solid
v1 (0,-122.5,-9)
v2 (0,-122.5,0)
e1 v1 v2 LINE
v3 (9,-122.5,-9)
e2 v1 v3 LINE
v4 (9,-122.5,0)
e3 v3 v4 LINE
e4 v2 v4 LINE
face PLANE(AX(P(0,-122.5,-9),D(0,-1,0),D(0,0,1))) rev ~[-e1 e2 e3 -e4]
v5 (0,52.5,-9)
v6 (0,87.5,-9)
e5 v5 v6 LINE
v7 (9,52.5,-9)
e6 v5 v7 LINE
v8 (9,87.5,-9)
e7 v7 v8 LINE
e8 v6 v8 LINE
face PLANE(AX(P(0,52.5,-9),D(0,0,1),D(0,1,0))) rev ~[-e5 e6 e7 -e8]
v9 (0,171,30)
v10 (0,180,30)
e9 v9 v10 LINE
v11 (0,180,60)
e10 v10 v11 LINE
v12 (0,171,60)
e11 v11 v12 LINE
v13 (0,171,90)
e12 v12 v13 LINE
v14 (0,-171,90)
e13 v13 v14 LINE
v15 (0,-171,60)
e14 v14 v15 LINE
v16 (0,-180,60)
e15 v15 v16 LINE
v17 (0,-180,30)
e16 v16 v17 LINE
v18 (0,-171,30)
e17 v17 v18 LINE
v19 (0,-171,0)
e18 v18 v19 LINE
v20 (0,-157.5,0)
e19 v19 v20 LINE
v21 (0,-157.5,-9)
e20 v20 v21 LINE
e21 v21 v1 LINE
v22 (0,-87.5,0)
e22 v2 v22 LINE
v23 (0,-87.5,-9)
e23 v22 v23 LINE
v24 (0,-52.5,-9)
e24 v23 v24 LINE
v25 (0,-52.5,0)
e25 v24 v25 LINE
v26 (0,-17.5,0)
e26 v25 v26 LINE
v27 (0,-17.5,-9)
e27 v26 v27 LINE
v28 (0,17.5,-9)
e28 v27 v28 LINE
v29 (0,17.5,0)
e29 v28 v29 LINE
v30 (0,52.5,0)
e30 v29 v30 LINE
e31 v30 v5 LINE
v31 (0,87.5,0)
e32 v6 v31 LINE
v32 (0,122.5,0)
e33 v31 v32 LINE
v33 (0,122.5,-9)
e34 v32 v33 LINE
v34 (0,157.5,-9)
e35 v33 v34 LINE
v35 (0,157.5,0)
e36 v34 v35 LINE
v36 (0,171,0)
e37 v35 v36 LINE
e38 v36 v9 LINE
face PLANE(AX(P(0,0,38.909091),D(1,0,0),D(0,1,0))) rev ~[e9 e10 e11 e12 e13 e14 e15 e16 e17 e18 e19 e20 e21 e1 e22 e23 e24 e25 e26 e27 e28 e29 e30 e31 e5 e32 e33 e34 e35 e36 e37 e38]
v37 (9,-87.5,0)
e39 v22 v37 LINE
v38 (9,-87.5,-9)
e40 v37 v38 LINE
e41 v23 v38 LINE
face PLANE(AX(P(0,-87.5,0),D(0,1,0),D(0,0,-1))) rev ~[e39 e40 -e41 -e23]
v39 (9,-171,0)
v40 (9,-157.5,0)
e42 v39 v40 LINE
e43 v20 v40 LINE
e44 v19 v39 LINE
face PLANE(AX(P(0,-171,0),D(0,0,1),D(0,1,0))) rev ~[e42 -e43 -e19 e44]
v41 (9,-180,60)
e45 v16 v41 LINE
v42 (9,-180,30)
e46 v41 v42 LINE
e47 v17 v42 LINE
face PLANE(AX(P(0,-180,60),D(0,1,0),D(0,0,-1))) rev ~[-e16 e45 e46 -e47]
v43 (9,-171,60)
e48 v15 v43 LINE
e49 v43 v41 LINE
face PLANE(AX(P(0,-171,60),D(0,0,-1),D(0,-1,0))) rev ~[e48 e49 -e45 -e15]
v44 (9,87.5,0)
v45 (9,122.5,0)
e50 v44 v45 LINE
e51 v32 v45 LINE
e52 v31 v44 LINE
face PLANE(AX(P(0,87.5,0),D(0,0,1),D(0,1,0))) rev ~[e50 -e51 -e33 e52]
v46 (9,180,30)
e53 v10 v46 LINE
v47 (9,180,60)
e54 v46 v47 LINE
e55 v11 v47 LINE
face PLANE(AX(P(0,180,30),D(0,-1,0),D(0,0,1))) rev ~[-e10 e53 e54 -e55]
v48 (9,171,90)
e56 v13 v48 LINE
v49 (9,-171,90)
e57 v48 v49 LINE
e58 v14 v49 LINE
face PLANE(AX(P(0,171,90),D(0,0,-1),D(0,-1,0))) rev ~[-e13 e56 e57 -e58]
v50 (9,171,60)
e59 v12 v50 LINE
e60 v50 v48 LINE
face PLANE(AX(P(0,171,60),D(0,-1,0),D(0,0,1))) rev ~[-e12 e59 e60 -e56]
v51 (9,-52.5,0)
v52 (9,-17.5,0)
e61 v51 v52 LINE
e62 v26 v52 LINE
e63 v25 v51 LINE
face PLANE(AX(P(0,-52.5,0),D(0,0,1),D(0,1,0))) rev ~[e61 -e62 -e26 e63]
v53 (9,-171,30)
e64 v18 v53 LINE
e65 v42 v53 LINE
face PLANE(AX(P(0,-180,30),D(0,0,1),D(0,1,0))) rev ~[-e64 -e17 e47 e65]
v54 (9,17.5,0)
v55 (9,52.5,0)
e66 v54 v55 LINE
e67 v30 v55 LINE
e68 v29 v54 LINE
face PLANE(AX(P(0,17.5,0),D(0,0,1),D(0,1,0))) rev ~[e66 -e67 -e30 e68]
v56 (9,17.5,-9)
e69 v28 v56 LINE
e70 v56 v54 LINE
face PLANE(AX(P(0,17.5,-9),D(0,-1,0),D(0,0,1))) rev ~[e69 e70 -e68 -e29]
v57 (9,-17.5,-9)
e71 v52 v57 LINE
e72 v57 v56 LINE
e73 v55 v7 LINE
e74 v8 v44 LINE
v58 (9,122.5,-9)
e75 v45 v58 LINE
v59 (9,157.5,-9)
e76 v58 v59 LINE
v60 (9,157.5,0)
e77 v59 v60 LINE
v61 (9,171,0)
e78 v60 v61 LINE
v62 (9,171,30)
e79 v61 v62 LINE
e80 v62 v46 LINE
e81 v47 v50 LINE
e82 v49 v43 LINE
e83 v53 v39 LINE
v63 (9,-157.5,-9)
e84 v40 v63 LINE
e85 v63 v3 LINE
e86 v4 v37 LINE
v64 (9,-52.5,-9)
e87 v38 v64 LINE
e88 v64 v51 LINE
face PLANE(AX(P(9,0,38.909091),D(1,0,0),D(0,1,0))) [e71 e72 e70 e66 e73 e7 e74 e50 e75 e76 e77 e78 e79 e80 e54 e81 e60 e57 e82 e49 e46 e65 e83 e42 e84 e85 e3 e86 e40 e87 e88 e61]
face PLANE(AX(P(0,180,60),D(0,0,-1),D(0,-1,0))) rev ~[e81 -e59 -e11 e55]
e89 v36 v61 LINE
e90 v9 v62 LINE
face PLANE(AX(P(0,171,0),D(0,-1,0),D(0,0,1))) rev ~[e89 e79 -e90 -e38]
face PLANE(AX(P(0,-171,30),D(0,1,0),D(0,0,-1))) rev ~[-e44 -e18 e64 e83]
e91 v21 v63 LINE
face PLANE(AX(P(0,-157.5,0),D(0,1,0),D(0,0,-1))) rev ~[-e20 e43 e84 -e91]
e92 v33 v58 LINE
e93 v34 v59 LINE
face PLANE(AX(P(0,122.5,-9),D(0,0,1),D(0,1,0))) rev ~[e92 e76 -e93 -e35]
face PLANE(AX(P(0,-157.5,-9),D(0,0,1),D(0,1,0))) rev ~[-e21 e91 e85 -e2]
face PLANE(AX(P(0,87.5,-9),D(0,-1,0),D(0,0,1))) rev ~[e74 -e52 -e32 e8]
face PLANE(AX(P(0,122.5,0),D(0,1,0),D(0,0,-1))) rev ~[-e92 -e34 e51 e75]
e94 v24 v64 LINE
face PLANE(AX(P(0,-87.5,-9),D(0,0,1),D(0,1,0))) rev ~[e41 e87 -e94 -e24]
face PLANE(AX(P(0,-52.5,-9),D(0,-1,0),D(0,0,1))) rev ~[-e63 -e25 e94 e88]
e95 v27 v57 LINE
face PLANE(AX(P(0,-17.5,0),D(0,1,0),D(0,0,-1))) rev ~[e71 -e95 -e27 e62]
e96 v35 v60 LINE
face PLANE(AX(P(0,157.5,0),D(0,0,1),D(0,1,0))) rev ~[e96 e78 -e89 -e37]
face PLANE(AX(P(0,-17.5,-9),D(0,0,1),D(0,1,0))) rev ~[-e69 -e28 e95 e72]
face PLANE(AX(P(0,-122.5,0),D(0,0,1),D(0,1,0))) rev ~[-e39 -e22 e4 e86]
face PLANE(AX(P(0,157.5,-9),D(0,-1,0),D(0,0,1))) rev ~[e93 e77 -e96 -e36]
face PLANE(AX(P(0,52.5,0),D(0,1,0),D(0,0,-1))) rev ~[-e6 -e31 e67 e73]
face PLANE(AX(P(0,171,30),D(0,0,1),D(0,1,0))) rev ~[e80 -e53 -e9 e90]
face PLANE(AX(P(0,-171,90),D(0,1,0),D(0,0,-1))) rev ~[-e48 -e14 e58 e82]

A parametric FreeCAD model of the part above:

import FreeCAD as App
import Part
import Sketcher


def add_polygon(sketch, points):
    """Adds a closed chain of lines whose ends are joined by coincident constraints."""
    first, n = sketch.GeometryCount, len(points)
    for a, b in zip(points, points[1:] + points[:1]):
        sketch.addGeometry(Part.LineSegment(App.Vector(*a, 0), App.Vector(*b, 0)), False)
    for i in range(n):
        sketch.addConstraint(Sketcher.Constraint("Coincident", first + i, 2, first + (i + 1) % n, 1))

doc = App.newDocument("Part")
params = doc.addObject("Spreadsheet::Sheet", "Params")
for row, (alias, value) in enumerate([
    ("sketch1_width", "9 mm"),
    ("sketch1_width2", "35 mm"),
    ("sketch1_width3", "342 mm"),
    ("sketch1_height", "30 mm"),
    ("pad1_length", "9 mm"),
], start=1):
    params.set(f"A{row}", alias)
    params.set(f"B{row}", "=" + value)
    params.setAlias(f"B{row}", alias)

body = doc.addObject("PartDesign::Body", "Body")

# Sketch on YZ plane
sketch1 = body.newObject("Sketcher::SketchObject", "Sketch")
sketch1.AttachmentSupport = (doc.getObject("YZ_Plane"), [""])
sketch1.MapMode = "FlatFace"
add_polygon(sketch1, [(-171, 60), (-180, 60), (-180, 30), (-171, 30), (-171, 0), (-158, 0), (-158, -9), (-122, -9), (-122, 0), (-88, 0), (-88, -9), (-52, -9), (-52, 0), (-18, 0), (-18, -9), (18, -9), (18, 0), (52, 0), (52, -9), (88, -9), (88, 0), (122, 0), (122, -9), (158, -9), (158, 0), (171, 0), (171, 30), (180, 30), (180, 60), (171, 60), (171, 90), (-171, 90)])  # lines 0-31
sketch1.addConstraint(Sketcher.Constraint("Horizontal", 0))
sketch1.addConstraint(Sketcher.Constraint("Vertical", 1))
sketch1.addConstraint(Sketcher.Constraint("Horizontal", 2))
sketch1.addConstraint(Sketcher.Constraint("Vertical", 3))
sketch1.addConstraint(Sketcher.Constraint("Horizontal", 4))
sketch1.addConstraint(Sketcher.Constraint("Vertical", 5))
sketch1.addConstraint(Sketcher.Constraint("Horizontal", 6))
sketch1.addConstraint(Sketcher.Constraint("Vertical", 7))
sketch1.addConstraint(Sketcher.Constraint("Horizontal", 8))
sketch1.addConstraint(Sketcher.Constraint("Vertical", 9))
sketch1.addConstraint(Sketcher.Constraint("Horizontal", 10))
sketch1.addConstraint(Sketcher.Constraint("Vertical", 11))
sketch1.addConstraint(Sketcher.Constraint("Horizontal", 12))
sketch1.addConstraint(Sketcher.Constraint("Vertical", 13))
sketch1.addConstraint(Sketcher.Constraint("Horizontal", 14))
sketch1.addConstraint(Sketcher.Constraint("Vertical", 15))
sketch1.addConstraint(Sketcher.Constraint("Horizontal", 16))
sketch1.addConstraint(Sketcher.Constraint("Vertical", 17))
sketch1.addConstraint(Sketcher.Constraint("Horizontal", 18))
sketch1.addConstraint(Sketcher.Constraint("Vertical", 19))
sketch1.addConstraint(Sketcher.Constraint("Horizontal", 20))
sketch1.addConstraint(Sketcher.Constraint("Vertical", 21))
sketch1.addConstraint(Sketcher.Constraint("Horizontal", 22))
sketch1.addConstraint(Sketcher.Constraint("Vertical", 23))
sketch1.addConstraint(Sketcher.Constraint("Horizontal", 24))
sketch1.addConstraint(Sketcher.Constraint("Vertical", 25))
sketch1.addConstraint(Sketcher.Constraint("Horizontal", 26))
sketch1.addConstraint(Sketcher.Constraint("Vertical", 27))
sketch1.addConstraint(Sketcher.Constraint("Horizontal", 28))
sketch1.addConstraint(Sketcher.Constraint("Vertical", 29))
sketch1.addConstraint(Sketcher.Constraint("Horizontal", 30))
sketch1.addConstraint(Sketcher.Constraint("Vertical", 31))
sketch1.addConstraint(Sketcher.Constraint("Symmetric", 12, 2, 15, 2, -1, 1))
sketch1.addConstraint(Sketcher.Constraint("Symmetric", 8, 2, 19, 2, -1, 1))
sketch1.addConstraint(Sketcher.Constraint("Symmetric", 4, 2, 23, 2, -1, 1))
sketch1.addConstraint(Sketcher.Constraint("Symmetric", 11, 2, 16, 2, -2))
sketch1.addConstraint(Sketcher.Constraint("Symmetric", 7, 2, 20, 2, -2))
sketch1.addConstraint(Sketcher.Constraint("Symmetric", 3, 2, 24, 2, -2))
sketch1.addConstraint(Sketcher.Constraint("Symmetric", 1, 2, 26, 2, -2))
sketch1.addConstraint(Sketcher.Constraint("Symmetric", 28, 2, 31, 2, -2))
sketch1.addConstraint(Sketcher.Constraint("Horizontal", 6, 2, 9, 2))
sketch1.addConstraint(Sketcher.Constraint("Horizontal", 10, 2, 13, 2))
sketch1.addConstraint(Sketcher.Constraint("Horizontal", 14, 2, 17, 2))
sketch1.addConstraint(Sketcher.Constraint("Horizontal", 18, 2, 21, 2))
sketch1.addConstraint(Sketcher.Constraint("Vertical", 25, 2, 28, 2))
sketch1.addConstraint(Sketcher.Constraint("Equal", 6, 8))
sketch1.addConstraint(Sketcher.Constraint("Equal", 8, 10))
sketch1.addConstraint(Sketcher.Constraint("Equal", 10, 12))
sketch1.addConstraint(Sketcher.Constraint("Equal", 12, 14))
sketch1.addConstraint(Sketcher.Constraint("Equal", 1, 3))
sketch1.addConstraint(Sketcher.Constraint("Equal", 28, 5))
sketch1.addConstraint(Sketcher.Constraint("Equal", 27, 29))
sketch1.addConstraint(Sketcher.Constraint("DistanceX", 0, 2, 0, 1, 9.0))
sketch1.addConstraint(Sketcher.Constraint("DistanceX", 6, 1, 6, 2, 35.0))
sketch1.addConstraint(Sketcher.Constraint("DistanceX", 30, 2, 30, 1, 342.0))
sketch1.addConstraint(Sketcher.Constraint("DistanceY", 1, 2, 1, 1, 30.0))
sketch1.setExpression("Constraints[84]", "Params.sketch1_width")
sketch1.setExpression("Constraints[85]", "Params.sketch1_width2")
sketch1.setExpression("Constraints[86]", "Params.sketch1_width3")
sketch1.setExpression("Constraints[87]", "Params.sketch1_height")
pad1 = body.newObject("PartDesign::Pad", "Pad")
pad1.Profile = sketch1
pad1.setExpression("Length", "Params.pad1_length")

doc.recompute()
